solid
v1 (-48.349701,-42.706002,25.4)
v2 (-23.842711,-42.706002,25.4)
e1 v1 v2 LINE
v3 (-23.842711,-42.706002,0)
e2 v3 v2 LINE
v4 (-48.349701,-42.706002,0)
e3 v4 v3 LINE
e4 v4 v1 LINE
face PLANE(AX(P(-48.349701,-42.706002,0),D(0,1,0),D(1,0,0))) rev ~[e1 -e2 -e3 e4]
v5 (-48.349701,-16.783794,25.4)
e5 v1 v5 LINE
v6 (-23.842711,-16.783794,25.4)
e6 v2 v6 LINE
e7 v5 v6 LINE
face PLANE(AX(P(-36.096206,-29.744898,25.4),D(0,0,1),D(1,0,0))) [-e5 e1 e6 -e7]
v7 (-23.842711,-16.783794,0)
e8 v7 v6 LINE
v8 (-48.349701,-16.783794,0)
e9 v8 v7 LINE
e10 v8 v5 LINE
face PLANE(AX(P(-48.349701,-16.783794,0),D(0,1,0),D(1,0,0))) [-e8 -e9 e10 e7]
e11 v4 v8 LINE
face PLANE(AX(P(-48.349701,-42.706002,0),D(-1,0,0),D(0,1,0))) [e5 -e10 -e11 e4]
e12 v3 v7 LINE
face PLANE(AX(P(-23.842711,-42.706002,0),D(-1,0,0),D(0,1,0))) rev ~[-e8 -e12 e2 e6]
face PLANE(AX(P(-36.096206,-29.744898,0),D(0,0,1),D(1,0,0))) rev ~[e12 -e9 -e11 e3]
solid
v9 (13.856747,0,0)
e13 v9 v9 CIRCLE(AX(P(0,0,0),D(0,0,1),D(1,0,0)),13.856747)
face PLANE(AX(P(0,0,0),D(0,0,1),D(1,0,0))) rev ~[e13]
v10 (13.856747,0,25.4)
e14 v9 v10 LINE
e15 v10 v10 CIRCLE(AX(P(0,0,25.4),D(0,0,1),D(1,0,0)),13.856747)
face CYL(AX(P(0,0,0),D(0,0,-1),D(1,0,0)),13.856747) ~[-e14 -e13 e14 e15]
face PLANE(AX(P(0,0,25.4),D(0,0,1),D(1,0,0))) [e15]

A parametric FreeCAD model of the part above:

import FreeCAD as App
import Part
import Sketcher

V = App.Vector

doc = App.newDocument("Part")
params = doc.addObject("Spreadsheet::Sheet", "Params")
for row, (alias, value) in enumerate([
    ("pad1_length", "1 in"),
    ("pad2_length", "1 in"),
], start=1):
    params.set(f"A{row}", alias)
    params.set(f"B{row}", "=" + value)
    params.setAlias(f"B{row}", alias)

body = doc.addObject("PartDesign::Body", "Body")

# Sketch on XY plane
sketch1 = body.newObject("Sketcher::SketchObject", "Sketch")
sketch1.AttachmentSupport = (doc.getObject("XY_Plane"), [""])
sketch1.MapMode = "FlatFace"
sketch1.addGeometry(Part.Circle(V(0, 0, 0), V(0, 0, 1), 14), False)
sketch1.addConstraint(Sketcher.Constraint("Coincident", 0, 3, -1, 1))
sketch1.addConstraint(Sketcher.Constraint("Diameter", 0, 27.713494))
pad1 = body.newObject("PartDesign::Pad", "Pad")
pad1.Profile = sketch1
pad1.setExpression("Length", "Params.pad1_length")
body2 = doc.addObject("PartDesign::Body", "Body001")

# Sketch on XY plane
sketch2 = body2.newObject("Sketcher::SketchObject", "Sketch001")
sketch2.AttachmentSupport = (doc.getObject("XY_Plane001"), [""])
sketch2.MapMode = "FlatFace"
sketch2.addGeometry(Part.LineSegment(V(-48, -17, 0), V(-48, -43, 0)), False)
sketch2.addGeometry(Part.LineSegment(V(-48, -43, 0), V(-24, -43, 0)), False)
sketch2.addGeometry(Part.LineSegment(V(-24, -43, 0), V(-24, -17, 0)), False)
sketch2.addGeometry(Part.LineSegment(V(-24, -17, 0), V(-48, -17, 0)), False)
sketch2.addConstraint(Sketcher.Constraint("Coincident", 0, 2, 1, 1))
sketch2.addConstraint(Sketcher.Constraint("Coincident", 1, 2, 2, 1))
sketch2.addConstraint(Sketcher.Constraint("Coincident", 2, 2, 3, 1))
sketch2.addConstraint(Sketcher.Constraint("Coincident", 3, 2, 0, 1))
sketch2.addConstraint(Sketcher.Constraint("Vertical", 0))
sketch2.addConstraint(Sketcher.Constraint("Horizontal", 1))
sketch2.addConstraint(Sketcher.Constraint("Vertical", 2))
sketch2.addConstraint(Sketcher.Constraint("Horizontal", 3))
sketch2.addConstraint(Sketcher.Constraint("DistanceX", 1, 1, 1, 2, 24.50699))
sketch2.addConstraint(Sketcher.Constraint("DistanceX", 0, 2, -1, 1, 48.349701))
sketch2.addConstraint(Sketcher.Constraint("DistanceY", 0, 2, -1, 1, 42.706002))
sketch2.addConstraint(Sketcher.Constraint("DistanceY", 0, 2, 0, 1, 25.922208))
pad2 = body2.newObject("PartDesign::Pad", "Pad001")
pad2.Profile = sketch2
pad2.setExpression("Length", "Params.pad2_length")

doc.recompute()
